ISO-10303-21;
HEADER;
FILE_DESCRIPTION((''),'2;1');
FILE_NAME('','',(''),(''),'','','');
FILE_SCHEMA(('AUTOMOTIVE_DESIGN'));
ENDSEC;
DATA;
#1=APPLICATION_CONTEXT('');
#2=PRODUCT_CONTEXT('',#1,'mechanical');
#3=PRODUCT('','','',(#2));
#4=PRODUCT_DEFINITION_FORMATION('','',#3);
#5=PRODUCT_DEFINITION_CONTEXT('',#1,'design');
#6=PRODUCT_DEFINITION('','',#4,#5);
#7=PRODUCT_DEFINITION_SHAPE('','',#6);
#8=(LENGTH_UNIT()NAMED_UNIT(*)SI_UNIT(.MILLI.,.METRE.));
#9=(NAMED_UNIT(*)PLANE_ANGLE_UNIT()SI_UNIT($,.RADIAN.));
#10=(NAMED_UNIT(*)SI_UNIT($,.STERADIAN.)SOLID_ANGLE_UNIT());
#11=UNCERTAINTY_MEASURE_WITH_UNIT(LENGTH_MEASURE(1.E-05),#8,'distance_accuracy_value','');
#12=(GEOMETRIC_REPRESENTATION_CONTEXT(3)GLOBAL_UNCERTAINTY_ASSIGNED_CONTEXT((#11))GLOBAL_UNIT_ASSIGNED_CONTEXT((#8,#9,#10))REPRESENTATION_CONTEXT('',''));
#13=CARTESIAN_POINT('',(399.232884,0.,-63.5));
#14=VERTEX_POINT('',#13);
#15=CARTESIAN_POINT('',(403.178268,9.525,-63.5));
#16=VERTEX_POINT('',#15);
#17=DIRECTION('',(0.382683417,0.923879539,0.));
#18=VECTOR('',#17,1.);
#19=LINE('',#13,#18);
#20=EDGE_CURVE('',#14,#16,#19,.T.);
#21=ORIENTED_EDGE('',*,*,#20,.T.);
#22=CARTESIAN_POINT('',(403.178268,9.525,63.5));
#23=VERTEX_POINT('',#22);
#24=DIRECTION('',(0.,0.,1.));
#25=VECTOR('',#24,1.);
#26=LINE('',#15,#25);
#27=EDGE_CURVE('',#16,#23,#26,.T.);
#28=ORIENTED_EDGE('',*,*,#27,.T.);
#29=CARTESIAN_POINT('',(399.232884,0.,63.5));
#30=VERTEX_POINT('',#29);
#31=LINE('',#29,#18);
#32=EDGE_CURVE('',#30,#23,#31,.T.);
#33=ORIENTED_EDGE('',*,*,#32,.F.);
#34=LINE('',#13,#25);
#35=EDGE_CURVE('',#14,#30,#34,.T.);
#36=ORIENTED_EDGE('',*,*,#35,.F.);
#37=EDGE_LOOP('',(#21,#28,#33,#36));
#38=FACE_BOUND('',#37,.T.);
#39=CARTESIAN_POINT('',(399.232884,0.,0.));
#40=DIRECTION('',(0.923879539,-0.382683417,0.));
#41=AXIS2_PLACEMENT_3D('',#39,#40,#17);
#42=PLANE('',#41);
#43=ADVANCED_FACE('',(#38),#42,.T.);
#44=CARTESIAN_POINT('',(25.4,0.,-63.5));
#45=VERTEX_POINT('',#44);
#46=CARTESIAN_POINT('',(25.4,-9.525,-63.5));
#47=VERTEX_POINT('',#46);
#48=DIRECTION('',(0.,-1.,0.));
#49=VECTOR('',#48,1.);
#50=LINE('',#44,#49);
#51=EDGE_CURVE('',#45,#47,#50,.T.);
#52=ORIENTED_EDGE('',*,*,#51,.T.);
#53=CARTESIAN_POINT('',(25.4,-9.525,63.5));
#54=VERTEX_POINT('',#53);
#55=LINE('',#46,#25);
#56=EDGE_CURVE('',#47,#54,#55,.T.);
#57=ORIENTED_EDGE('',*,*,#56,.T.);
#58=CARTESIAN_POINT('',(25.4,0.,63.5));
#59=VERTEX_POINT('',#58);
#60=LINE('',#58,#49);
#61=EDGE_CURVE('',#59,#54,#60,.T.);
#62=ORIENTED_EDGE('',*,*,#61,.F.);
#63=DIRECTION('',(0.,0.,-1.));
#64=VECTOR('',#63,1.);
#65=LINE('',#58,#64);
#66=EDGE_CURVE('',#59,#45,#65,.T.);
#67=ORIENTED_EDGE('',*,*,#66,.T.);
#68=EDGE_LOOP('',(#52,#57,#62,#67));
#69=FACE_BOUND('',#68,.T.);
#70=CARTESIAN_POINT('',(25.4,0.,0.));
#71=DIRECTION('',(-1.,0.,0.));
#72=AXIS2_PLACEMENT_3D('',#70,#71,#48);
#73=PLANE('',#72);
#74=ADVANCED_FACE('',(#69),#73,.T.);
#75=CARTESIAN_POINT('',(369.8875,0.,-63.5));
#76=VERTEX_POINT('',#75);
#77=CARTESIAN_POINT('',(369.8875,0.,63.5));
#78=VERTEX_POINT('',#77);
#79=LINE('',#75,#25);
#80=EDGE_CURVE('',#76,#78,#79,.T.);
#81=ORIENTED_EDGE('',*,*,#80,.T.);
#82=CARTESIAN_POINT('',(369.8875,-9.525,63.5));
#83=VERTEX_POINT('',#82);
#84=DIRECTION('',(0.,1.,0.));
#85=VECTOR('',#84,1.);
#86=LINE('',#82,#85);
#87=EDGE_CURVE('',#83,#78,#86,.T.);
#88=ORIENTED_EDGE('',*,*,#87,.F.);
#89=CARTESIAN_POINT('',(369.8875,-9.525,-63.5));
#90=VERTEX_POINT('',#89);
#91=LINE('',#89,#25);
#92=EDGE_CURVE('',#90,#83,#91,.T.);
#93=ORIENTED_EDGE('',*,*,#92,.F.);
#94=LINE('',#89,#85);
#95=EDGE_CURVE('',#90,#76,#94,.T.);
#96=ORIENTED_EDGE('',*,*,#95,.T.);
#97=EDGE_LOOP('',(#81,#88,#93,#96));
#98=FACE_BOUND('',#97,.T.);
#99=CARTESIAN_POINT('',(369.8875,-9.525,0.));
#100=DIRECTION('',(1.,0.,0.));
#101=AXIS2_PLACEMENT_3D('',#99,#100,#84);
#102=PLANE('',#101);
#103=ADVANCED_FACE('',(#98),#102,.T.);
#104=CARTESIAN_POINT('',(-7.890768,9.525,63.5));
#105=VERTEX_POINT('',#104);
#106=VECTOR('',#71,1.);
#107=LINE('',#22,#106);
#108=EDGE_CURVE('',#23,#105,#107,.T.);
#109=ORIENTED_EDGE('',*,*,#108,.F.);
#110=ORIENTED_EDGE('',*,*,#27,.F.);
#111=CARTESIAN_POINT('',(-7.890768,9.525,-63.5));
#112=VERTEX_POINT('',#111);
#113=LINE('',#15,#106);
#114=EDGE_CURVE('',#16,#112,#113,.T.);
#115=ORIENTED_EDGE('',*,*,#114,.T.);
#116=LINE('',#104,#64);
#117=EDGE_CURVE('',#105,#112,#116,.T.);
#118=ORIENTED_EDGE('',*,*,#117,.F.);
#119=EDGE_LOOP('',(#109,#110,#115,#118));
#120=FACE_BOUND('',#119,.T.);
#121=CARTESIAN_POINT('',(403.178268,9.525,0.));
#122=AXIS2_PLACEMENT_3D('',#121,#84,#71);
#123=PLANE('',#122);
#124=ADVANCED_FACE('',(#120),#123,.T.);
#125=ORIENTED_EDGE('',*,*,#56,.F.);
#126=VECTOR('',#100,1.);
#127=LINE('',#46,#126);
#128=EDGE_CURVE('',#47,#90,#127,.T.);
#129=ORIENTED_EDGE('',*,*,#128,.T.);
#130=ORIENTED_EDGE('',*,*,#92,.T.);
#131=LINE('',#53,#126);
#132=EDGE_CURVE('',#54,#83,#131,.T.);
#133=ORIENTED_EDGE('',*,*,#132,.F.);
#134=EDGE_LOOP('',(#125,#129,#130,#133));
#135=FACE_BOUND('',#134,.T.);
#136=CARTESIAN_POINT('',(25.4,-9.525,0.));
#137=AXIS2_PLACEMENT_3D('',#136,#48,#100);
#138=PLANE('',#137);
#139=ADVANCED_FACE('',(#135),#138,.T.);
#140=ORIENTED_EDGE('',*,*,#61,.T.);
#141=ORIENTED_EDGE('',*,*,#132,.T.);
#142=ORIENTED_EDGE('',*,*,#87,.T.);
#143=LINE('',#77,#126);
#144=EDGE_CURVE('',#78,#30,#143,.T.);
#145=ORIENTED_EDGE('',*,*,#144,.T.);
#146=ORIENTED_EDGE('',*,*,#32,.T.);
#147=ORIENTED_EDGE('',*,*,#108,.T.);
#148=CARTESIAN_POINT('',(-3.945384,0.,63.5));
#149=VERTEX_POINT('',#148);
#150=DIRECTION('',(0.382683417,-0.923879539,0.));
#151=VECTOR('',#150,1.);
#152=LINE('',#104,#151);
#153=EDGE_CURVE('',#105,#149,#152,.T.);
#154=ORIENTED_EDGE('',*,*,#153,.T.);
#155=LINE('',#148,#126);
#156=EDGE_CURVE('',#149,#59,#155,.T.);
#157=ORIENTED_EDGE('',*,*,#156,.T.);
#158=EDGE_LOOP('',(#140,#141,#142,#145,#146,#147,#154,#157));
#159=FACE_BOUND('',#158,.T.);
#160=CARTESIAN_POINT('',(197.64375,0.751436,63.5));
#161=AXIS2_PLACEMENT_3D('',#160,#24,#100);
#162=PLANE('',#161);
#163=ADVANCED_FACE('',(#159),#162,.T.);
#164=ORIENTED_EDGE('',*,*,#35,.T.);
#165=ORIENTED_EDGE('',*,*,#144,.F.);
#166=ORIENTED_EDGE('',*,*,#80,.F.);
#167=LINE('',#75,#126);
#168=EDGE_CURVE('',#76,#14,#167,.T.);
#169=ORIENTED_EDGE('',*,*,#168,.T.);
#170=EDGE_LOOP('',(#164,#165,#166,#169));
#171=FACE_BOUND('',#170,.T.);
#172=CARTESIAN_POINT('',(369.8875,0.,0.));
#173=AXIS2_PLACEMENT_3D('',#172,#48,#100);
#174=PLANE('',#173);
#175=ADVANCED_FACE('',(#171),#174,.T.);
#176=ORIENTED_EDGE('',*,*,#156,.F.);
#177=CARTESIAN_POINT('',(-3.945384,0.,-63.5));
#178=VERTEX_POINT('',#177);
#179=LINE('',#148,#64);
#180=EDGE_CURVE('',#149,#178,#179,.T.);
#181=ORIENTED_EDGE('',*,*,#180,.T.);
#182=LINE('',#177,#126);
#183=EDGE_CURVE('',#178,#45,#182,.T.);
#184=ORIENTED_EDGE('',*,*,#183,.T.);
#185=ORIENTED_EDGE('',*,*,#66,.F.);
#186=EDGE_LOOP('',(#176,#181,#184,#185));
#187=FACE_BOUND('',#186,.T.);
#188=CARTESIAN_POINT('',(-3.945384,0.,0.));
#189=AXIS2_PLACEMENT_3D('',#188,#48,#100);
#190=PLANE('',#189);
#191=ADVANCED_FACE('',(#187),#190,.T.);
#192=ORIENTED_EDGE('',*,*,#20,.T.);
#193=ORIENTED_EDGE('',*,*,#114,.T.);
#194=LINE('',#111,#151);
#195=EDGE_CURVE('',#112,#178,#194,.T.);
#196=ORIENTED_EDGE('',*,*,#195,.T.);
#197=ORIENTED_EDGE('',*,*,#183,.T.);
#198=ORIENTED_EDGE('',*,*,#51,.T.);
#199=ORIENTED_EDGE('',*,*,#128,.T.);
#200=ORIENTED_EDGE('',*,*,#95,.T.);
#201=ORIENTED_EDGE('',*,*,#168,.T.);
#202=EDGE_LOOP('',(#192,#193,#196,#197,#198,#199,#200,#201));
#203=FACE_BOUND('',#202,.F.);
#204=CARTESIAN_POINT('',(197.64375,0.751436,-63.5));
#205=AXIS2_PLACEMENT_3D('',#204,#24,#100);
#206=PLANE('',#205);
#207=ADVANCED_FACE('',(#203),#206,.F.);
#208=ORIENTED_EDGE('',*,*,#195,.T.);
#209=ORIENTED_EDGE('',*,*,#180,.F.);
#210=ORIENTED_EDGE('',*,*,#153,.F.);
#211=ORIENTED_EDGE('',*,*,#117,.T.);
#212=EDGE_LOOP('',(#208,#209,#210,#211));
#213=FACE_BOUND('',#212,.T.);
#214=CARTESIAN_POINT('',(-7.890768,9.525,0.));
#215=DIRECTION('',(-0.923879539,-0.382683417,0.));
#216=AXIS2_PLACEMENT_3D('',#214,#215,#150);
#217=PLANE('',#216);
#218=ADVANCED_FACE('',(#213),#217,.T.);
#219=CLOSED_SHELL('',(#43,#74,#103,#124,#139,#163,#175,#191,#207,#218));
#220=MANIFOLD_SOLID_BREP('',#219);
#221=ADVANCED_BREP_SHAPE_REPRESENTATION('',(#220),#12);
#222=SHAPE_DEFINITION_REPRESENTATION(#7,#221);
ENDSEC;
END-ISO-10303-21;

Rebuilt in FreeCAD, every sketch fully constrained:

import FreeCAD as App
import Part
import Sketcher
from FreeCAD import Vector
Q = App.Units.Quantity

doc = App.newDocument("Part")
body = doc.addObject("PartDesign::Body", "Body")

# Sketch on XY plane
sketch1 = doc.addObject("Sketcher::SketchObject", "Sketch")
body.addObject(sketch1)
sketch1.AttachmentSupport = (doc.XY_Plane, [""])
sketch1.MapMode = "FlatFace"
sketch1.addGeometry(Part.LineSegment(Vector(25.4, 0, 0), Vector(25.4, -9.525, 0)), False)
sketch1.addGeometry(Part.LineSegment(Vector(25.4, -9.525, 0), Vector(369.8875, -9.525, 0)), False)
sketch1.addGeometry(Part.LineSegment(Vector(369.8875, -9.525, 0), Vector(369.8875, 0, 0)), False)
sketch1.addGeometry(Part.LineSegment(Vector(369.8875, 0, 0), Vector(399.232884, 0, 0)), False)
sketch1.addGeometry(Part.LineSegment(Vector(399.232884, 0, 0), Vector(403.178268, 9.525, 0)), False)
sketch1.addGeometry(Part.LineSegment(Vector(403.178268, 9.525, 0), Vector(-7.890768, 9.525, 0)), False)
sketch1.addGeometry(Part.LineSegment(Vector(-7.890768, 9.525, 0), Vector(-3.945384, 0, 0)), False)
sketch1.addGeometry(Part.LineSegment(Vector(-3.945384, 0, 0), Vector(25.4, 0, 0)), False)
sketch1.addConstraint(Sketcher.Constraint("Coincident", 0, 2, 1, 1))
sketch1.addConstraint(Sketcher.Constraint("Coincident", 1, 2, 2, 1))
sketch1.addConstraint(Sketcher.Constraint("Coincident", 2, 2, 3, 1))
sketch1.addConstraint(Sketcher.Constraint("Coincident", 3, 2, 4, 1))
sketch1.addConstraint(Sketcher.Constraint("Coincident", 4, 2, 5, 1))
sketch1.addConstraint(Sketcher.Constraint("Coincident", 5, 2, 6, 1))
sketch1.addConstraint(Sketcher.Constraint("Coincident", 6, 2, 7, 1))
sketch1.addConstraint(Sketcher.Constraint("Coincident", 7, 2, 0, 1))
sketch1.addConstraint(Sketcher.Constraint("Vertical", 0))
sketch1.addConstraint(Sketcher.Constraint("Horizontal", 1))
sketch1.addConstraint(Sketcher.Constraint("Vertical", 2))
sketch1.addConstraint(Sketcher.Constraint("Horizontal", 3))
sketch1.addConstraint(Sketcher.Constraint("Horizontal", 5))
sketch1.addConstraint(Sketcher.Constraint("Horizontal", 7))
sketch1.addConstraint(Sketcher.Constraint("PointOnObject", 2, 2, -1))
sketch1.addConstraint(Sketcher.Constraint("PointOnObject", 6, 2, -1))
sketch1.addConstraint(Sketcher.Constraint("Equal", 3, 7))
sketch1.addConstraint(Sketcher.Constraint("Equal", 4, 6))
sketch1.addConstraint(Sketcher.Constraint("DistanceX", -1, 1, 0, 2, Q("1 in")))
sketch1.addConstraint(Sketcher.Constraint("Angle", 4, Q("67.500001 deg")))
sketch1.addConstraint(Sketcher.Constraint("DistanceX", 1, 1, 1, 2, Q("13.5625 in")))
sketch1.addConstraint(Sketcher.Constraint("DistanceY", 0, 2, 0, 1, Q("0.375 in")))
sketch1.addConstraint(Sketcher.Constraint("DistanceY", 1, 2, 4, 2, Q("0.75 in")))
sketch1.addConstraint(Sketcher.Constraint("DistanceX", 3, 1, 3, 2, 29.345384))
pad1 = doc.addObject("PartDesign::Pad", "Pad")
body.addObject(pad1)
pad1.Profile = sketch1
pad1.Length = Q("5 in")
pad1.Midplane = True

doc.recompute()
